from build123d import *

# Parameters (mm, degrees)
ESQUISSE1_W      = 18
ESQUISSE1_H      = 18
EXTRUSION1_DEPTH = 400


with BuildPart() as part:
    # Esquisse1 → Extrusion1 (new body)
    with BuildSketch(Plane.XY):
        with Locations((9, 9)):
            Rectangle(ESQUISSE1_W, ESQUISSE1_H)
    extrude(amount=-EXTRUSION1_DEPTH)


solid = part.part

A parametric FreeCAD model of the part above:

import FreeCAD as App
import Part
import Sketcher

V = App.Vector
Q = App.Units.Quantity


def add_polygon(sketch, points):
    """Adds a closed chain of lines whose ends are joined by coincident constraints."""
    first, n = sketch.GeometryCount, len(points)
    for a, b in zip(points, points[1:] + points[:1]):
        sketch.addGeometry(Part.LineSegment(App.Vector(*a, 0), App.Vector(*b, 0)), False)
    for i in range(n):
        sketch.addConstraint(Sketcher.Constraint("Coincident", first + i, 2, first + (i + 1) % n, 1))

doc = App.newDocument("Part")
body = doc.addObject("PartDesign::Body", "Body")

# Sketch on XY plane
sketch1 = body.newObject("Sketcher::SketchObject", "Sketch")
sketch1.AttachmentSupport = (doc.getObject("XY_Plane"), [""])
sketch1.MapMode = "FlatFace"
add_polygon(sketch1, [(0, 18), (0, 0), (18, 0), (18, 18)])  # lines 0-3
sketch1.addConstraint([
    Sketcher.Constraint("Vertical", 0),
    Sketcher.Constraint("Horizontal", 1),
    Sketcher.Constraint("Vertical", 2),
    Sketcher.Constraint("Horizontal", 3),
    Sketcher.Constraint("Coincident", 0, 2, -1, 1),
    Sketcher.Constraint("Equal", 3, 0),
    Sketcher.Constraint("DistanceX", 1, 1, 1, 2, Q("18 mm")),
])
pad1 = body.newObject("PartDesign::Pad", "Pad")
pad1.Profile = sketch1
pad1.Length = 400
pad1.Reversed = True

doc.recompute()
